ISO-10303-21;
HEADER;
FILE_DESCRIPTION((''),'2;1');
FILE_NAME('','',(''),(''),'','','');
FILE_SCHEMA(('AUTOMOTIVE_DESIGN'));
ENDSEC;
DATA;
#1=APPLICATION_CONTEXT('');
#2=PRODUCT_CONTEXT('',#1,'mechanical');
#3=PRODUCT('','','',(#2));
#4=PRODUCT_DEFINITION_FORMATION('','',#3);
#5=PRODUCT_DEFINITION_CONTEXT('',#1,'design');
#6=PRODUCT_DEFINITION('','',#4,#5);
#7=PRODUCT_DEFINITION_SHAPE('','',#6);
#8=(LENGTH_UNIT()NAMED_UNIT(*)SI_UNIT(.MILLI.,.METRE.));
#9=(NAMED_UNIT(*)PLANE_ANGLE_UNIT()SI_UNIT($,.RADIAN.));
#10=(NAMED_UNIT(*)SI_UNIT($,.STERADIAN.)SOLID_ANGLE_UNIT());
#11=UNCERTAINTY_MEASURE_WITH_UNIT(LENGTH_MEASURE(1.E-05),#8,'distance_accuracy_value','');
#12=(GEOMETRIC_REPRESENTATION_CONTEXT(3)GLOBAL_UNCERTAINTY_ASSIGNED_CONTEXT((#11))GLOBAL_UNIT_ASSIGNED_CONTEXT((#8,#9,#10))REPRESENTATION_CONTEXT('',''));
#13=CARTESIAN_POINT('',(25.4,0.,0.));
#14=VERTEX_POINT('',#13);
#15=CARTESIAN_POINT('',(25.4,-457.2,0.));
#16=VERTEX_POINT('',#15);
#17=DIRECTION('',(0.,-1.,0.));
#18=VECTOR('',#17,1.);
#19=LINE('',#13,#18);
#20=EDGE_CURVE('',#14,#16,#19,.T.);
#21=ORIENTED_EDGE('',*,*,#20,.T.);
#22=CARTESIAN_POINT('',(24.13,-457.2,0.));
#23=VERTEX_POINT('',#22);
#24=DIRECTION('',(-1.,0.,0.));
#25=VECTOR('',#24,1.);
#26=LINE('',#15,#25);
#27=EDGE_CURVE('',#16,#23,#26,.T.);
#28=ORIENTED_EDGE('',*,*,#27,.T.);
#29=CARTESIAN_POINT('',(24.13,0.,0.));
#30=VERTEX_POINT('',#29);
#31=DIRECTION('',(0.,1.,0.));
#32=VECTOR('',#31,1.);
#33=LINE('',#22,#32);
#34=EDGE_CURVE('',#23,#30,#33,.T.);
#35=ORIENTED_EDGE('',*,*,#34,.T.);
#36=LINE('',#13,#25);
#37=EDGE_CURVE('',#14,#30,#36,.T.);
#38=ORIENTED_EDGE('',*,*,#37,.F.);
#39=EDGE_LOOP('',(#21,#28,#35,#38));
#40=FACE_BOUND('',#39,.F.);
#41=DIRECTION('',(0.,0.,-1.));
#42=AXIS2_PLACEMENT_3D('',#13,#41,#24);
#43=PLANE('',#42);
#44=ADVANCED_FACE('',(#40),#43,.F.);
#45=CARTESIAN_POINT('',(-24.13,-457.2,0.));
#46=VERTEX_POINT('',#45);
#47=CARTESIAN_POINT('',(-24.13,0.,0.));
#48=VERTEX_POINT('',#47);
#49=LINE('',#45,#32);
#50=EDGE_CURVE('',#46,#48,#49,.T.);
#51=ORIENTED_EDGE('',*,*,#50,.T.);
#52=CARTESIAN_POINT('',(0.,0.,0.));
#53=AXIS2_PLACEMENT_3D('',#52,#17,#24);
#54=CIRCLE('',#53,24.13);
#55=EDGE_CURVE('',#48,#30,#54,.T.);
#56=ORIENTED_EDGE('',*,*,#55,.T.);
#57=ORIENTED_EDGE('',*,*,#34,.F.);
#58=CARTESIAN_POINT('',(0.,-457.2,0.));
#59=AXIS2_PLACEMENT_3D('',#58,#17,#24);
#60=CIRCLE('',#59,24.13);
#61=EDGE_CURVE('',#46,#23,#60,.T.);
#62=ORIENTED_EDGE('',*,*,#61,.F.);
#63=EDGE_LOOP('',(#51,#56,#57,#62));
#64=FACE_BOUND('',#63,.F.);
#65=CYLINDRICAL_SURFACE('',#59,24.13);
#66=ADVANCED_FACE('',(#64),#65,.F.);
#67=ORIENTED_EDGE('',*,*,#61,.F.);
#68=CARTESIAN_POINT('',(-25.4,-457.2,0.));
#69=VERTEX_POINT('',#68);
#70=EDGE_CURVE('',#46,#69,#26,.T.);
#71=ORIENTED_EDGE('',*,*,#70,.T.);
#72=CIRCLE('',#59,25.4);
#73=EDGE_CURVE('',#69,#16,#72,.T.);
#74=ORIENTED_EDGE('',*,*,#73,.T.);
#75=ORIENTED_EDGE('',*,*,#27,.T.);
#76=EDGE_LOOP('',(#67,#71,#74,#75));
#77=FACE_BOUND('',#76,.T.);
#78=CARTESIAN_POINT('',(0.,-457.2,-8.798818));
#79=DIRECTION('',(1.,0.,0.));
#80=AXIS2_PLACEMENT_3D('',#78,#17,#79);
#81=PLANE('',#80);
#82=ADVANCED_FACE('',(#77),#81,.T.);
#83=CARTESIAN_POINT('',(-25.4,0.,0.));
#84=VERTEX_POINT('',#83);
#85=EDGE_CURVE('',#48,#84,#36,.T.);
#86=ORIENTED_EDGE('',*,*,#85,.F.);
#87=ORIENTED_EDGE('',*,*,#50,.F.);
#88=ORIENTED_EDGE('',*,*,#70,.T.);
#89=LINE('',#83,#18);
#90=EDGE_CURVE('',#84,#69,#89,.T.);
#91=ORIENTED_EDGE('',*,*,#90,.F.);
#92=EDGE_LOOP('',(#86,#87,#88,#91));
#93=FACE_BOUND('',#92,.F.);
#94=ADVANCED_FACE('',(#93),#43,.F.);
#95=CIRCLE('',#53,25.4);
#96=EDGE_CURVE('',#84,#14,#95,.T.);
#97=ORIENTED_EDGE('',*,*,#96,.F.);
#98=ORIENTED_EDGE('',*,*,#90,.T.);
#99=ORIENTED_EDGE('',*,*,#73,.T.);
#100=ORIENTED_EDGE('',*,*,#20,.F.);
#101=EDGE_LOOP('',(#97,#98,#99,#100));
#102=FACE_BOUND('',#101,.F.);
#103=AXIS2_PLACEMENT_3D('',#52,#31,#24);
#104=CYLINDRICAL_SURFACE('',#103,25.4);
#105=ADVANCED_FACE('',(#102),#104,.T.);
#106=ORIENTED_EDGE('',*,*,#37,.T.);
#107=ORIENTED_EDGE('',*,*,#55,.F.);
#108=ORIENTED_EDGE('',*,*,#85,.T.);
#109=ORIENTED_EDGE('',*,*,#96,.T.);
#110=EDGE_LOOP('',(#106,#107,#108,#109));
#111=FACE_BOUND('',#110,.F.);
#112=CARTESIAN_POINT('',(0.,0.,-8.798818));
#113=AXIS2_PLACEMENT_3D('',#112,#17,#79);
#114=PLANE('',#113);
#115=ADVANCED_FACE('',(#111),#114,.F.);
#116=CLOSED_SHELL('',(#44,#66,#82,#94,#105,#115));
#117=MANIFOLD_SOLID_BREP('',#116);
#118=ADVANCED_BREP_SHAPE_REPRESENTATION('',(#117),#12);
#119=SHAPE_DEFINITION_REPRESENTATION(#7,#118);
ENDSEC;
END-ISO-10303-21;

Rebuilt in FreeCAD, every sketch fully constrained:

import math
import FreeCAD as App
import Part
import Sketcher

V = App.Vector
Q = App.Units.Quantity

doc = App.newDocument("Part")
body = doc.addObject("PartDesign::Body", "Body")

# Sketch on XZ plane
sketch1 = body.newObject("Sketcher::SketchObject", "Sketch")
sketch1.AttachmentSupport = (doc.getObject("XZ_Plane"), [""])
sketch1.MapMode = "FlatFace"
sketch1.addGeometry(Part.ArcOfCircle(Part.Circle(V(0, 0, 0), V(0, 0, 1), 25), math.radians(180), math.radians(360)), False)
sketch1.addGeometry(Part.LineSegment(V(25, 0, 0), V(-25, 0, 0)), False)
sketch1.addConstraint(Sketcher.Constraint("Coincident", 0, 1, 1, 2))
sketch1.addConstraint(Sketcher.Constraint("Coincident", 1, 1, 0, 2))
sketch1.addConstraint(Sketcher.Constraint("Horizontal", 1))
sketch1.addConstraint(Sketcher.Constraint("Coincident", 0, 3, -1, 1))
sketch1.addConstraint(Sketcher.Constraint("PointOnObject", 0, 1, -1))
sketch1.addConstraint(Sketcher.Constraint("Radius", 0, Q("1 in")))
pad1 = body.newObject("PartDesign::Pad", "Pad")
pad1.Profile = sketch1
pad1.Length = Q("18 in")

# Sketch on XZ plane
sketch2 = body.newObject("Sketcher::SketchObject", "Sketch001")
sketch2.AttachmentSupport = (doc.getObject("XZ_Plane"), [""])
sketch2.MapMode = "FlatFace"
sketch2.AttachmentOffset = App.Placement(V(0, 0, 18 * 25.4), App.Rotation())
sketch2.addGeometry(Part.ArcOfCircle(Part.Circle(V(0, 0, 0), V(0, 0, 1), 24), math.radians(180), math.radians(360)), False)
sketch2.addGeometry(Part.LineSegment(V(24, 0, 0), V(-24, 0, 0)), False)
sketch2.addConstraint(Sketcher.Constraint("Coincident", 0, 1, 1, 2))
sketch2.addConstraint(Sketcher.Constraint("Coincident", 1, 1, 0, 2))
sketch2.addConstraint(Sketcher.Constraint("Horizontal", 1))
sketch2.addConstraint(Sketcher.Constraint("Coincident", 0, 3, -1, 1))
sketch2.addConstraint(Sketcher.Constraint("PointOnObject", 0, 1, -1))
sketch2.addConstraint(Sketcher.Constraint("Radius", 0, Q("0.95 in")))
pocket1 = body.newObject("PartDesign::Pocket", "Pocket")
pocket1.Profile = sketch2
pocket1.Type = "ThroughAll"

doc.recompute()
